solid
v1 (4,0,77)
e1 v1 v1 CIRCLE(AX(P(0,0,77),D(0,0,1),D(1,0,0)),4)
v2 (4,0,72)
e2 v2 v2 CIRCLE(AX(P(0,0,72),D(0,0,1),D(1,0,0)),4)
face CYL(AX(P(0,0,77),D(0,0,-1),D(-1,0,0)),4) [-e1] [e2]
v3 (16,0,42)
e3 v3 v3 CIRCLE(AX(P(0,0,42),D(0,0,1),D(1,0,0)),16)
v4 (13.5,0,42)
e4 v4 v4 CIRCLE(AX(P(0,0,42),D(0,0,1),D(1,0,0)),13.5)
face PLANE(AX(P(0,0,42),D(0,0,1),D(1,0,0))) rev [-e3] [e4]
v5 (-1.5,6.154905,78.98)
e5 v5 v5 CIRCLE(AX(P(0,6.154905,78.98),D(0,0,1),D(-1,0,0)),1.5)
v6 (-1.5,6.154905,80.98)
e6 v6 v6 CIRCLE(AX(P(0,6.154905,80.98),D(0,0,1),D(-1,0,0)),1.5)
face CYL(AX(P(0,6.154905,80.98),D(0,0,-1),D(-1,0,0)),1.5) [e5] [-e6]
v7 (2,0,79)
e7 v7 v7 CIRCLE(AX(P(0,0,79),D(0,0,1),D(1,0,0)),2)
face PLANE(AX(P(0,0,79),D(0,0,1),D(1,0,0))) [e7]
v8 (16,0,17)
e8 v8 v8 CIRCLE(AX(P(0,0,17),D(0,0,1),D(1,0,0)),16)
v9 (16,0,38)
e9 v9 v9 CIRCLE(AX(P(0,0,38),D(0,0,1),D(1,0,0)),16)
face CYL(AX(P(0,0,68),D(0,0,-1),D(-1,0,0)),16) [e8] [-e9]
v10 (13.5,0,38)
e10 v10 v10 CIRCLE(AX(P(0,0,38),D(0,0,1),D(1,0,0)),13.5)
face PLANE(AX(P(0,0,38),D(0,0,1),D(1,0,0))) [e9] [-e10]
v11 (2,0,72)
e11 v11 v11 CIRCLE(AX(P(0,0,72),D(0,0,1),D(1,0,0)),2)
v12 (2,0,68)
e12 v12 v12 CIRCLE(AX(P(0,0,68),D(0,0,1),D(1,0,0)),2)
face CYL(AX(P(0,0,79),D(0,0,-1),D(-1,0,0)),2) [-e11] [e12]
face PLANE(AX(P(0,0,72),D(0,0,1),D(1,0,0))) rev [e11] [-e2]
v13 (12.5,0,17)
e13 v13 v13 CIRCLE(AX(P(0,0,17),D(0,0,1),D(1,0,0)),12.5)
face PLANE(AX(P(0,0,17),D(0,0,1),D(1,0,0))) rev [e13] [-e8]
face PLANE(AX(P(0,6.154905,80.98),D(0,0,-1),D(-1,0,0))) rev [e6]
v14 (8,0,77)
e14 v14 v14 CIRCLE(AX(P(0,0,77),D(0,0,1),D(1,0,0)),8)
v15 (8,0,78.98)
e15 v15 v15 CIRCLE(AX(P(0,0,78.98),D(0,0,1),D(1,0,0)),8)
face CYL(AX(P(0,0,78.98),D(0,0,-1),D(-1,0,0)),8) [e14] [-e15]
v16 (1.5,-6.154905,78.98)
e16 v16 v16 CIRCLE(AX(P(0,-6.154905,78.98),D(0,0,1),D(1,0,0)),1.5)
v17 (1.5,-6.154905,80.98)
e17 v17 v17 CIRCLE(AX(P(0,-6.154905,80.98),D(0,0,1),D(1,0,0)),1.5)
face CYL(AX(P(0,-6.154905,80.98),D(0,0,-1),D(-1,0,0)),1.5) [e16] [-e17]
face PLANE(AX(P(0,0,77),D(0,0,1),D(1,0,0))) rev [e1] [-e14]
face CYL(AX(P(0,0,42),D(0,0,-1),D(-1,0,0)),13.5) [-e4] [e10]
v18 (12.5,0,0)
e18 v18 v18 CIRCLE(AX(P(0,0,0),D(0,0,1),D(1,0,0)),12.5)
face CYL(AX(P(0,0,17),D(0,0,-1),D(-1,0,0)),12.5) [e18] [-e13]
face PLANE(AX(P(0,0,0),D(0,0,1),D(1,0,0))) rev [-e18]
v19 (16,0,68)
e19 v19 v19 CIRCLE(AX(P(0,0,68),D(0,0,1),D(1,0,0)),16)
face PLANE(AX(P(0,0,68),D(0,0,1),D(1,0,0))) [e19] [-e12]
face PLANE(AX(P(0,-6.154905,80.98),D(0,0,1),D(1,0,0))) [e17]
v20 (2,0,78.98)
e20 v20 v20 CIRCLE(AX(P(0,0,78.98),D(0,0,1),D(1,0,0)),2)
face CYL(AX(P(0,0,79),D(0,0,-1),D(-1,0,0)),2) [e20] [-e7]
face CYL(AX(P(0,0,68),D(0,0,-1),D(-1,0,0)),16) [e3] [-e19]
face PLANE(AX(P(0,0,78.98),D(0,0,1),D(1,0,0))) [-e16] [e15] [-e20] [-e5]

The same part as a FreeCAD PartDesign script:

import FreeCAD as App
import Part
import Sketcher
from FreeCAD import Vector
Q = App.Units.Quantity

doc = App.newDocument("Part")
body = doc.addObject("PartDesign::Body", "Body")

sketch1 = body.newObject("Sketcher::SketchObject", "Sketch")
sketch1.AttachmentSupport = (doc.getObject("XY_Plane"), [""])
sketch1.MapMode = "FlatFace"
sketch1.addGeometry(Part.Circle(Vector(0, 0, 0), Vector(0, 0, 1), 12), False)
sketch1.addConstraint([
    Sketcher.Constraint("Coincident", 0, 3, -1, 1),
    Sketcher.Constraint("Diameter", 0, Q("25 mm")),
])
pad1 = body.newObject("PartDesign::Pad", "Pad")
pad1.Profile = sketch1
pad1.Length = 17

sketch2 = body.newObject("Sketcher::SketchObject", "Sketch001")
sketch2.AttachmentSupport = (doc.getObject("XY_Plane"), [""])
sketch2.MapMode = "FlatFace"
sketch2.AttachmentOffset = App.Placement(Vector(0, 0, 17), App.Rotation())
sketch2.addGeometry(Part.Circle(Vector(0, 0, 0), Vector(0, 0, 1), 16), False)
sketch2.addConstraint([
    Sketcher.Constraint("Coincident", 0, 3, -1, 1),
    Sketcher.Constraint("Diameter", 0, Q("32 mm")),
])
pad2 = body.newObject("PartDesign::Pad", "Pad001")
pad2.Profile = sketch2
pad2.Length = 51

sketch3 = body.newObject("Sketcher::SketchObject", "Sketch002")
sketch3.AttachmentSupport = (doc.getObject("XY_Plane"), [""])
sketch3.MapMode = "FlatFace"
sketch3.AttachmentOffset = App.Placement(Vector(0, 0, 68), App.Rotation())
sketch3.addGeometry(Part.Circle(Vector(0, 0, 0), Vector(0, 0, 1), 2), False)
sketch3.addConstraint([
    Sketcher.Constraint("Coincident", 0, 3, -1, 1),
    Sketcher.Constraint("Diameter", 0, Q("4 mm")),
])
pad3 = body.newObject("PartDesign::Pad", "Pad002")
pad3.Profile = sketch3
pad3.Length = 11

sketch4 = body.newObject("Sketcher::SketchObject", "Sketch003")
sketch4.AttachmentSupport = (doc.getObject("XY_Plane"), [""])
sketch4.MapMode = "FlatFace"
sketch4.AttachmentOffset = App.Placement(Vector(0, 0, 72), App.Rotation())
sketch4.addGeometry(Part.Circle(Vector(0, 0, 0), Vector(0, 0, 1), 4), False)
sketch4.addConstraint([
    Sketcher.Constraint("Coincident", 0, 3, -1, 1),
    Sketcher.Constraint("Diameter", 0, Q("8 mm")),
])
pad4 = body.newObject("PartDesign::Pad", "Pad003")
pad4.Profile = sketch4
pad4.Length = 5

sketch5 = body.newObject("Sketcher::SketchObject", "Sketch004")
sketch5.AttachmentSupport = (doc.getObject("XY_Plane"), [""])
sketch5.MapMode = "FlatFace"
sketch5.AttachmentOffset = App.Placement(Vector(0, 0, 77), App.Rotation())
sketch5.addGeometry(Part.Circle(Vector(0, 0, 0), Vector(0, 0, 1), 8), False)
sketch5.addConstraint([
    Sketcher.Constraint("Coincident", 0, 3, -1, 1),
    Sketcher.Constraint("Diameter", 0, Q("16 mm")),
])
pad5 = body.newObject("PartDesign::Pad", "Pad004")
pad5.Profile = sketch5
pad5.Length = 1.98

sketch6 = body.newObject("Sketcher::SketchObject", "Sketch005")
sketch6.AttachmentSupport = (doc.getObject("XY_Plane"), [""])
sketch6.MapMode = "FlatFace"
sketch6.AttachmentOffset = App.Placement(Vector(0, 0, 78.98), App.Rotation())
sketch6.addGeometry([
    Part.Circle(Vector(0, -6.2, 0), Vector(0, 0, 1), 1.5),
    Part.Circle(Vector(0, 6.2, 0), Vector(0, 0, 1), 1.5),
], False)
sketch6.addConstraint([
    Sketcher.Constraint("Equal", 0, 1),
    Sketcher.Constraint("Symmetric", 0, 3, 1, 3, -1, 1),
    Sketcher.Constraint("PointOnObject", 0, 3, -2),
    Sketcher.Constraint("Diameter", 0, Q("3 mm")),
    Sketcher.Constraint("DistanceY", 0, 3, 1, 3, Q("12.30981 mm")),
])
pad6 = body.newObject("PartDesign::Pad", "Pad005")
pad6.Profile = sketch6
pad6.Length = 2

sketch7 = body.newObject("Sketcher::SketchObject", "Sketch006")
sketch7.AttachmentSupport = (doc.getObject("XY_Plane"), [""])
sketch7.MapMode = "FlatFace"
sketch7.AttachmentOffset = App.Placement(Vector(0, 0, 38), App.Rotation())
sketch7.addGeometry([
    Part.Circle(Vector(0, 0, 0), Vector(0, 0, 1), 21),
    Part.Circle(Vector(0, 0, 0), Vector(0, 0, 1), 14),
], False)
sketch7.addConstraint([
    Sketcher.Constraint("Coincident", 0, 3, -1, 1),
    Sketcher.Constraint("Coincident", 1, 3, -1, 1),
    Sketcher.Constraint("Diameter", 1, Q("27 mm")),
    Sketcher.Constraint("Diameter", 0, Q("41.564995 mm")),
])
pocket1 = body.newObject("PartDesign::Pocket", "Pocket")
pocket1.Profile = sketch7
pocket1.Length = 4
pocket1.Reversed = True

doc.recompute()
